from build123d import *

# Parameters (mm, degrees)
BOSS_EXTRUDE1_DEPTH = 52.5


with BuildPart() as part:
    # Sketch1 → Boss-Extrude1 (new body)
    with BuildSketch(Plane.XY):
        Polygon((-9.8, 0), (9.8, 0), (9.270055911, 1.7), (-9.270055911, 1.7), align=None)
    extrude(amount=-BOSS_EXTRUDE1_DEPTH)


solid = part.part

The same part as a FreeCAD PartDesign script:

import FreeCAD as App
import Part
import Sketcher


def add_polygon(sketch, points):
    """Adds a closed chain of lines whose ends are joined by coincident constraints."""
    first, n = sketch.GeometryCount, len(points)
    for a, b in zip(points, points[1:] + points[:1]):
        sketch.addGeometry(Part.LineSegment(App.Vector(*a, 0), App.Vector(*b, 0)), False)
    for i in range(n):
        sketch.addConstraint(Sketcher.Constraint("Coincident", first + i, 2, first + (i + 1) % n, 1))

doc = App.newDocument("Part")
body = doc.addObject("PartDesign::Body", "Body")

# Sketch on XY plane
sketch1 = body.newObject("Sketcher::SketchObject", "Sketch")
sketch1.AttachmentSupport = (doc.getObject("XY_Plane"), [""])
sketch1.MapMode = "FlatFace"
add_polygon(sketch1, [(-9.8, 0), (9.8, 0), (9.270056, 1.7), (-9.270056, 1.7)])  # lines 0-3
sketch1.addConstraint([
    Sketcher.Constraint("Horizontal", 0),
    Sketcher.Constraint("Horizontal", 2),
    Sketcher.Constraint("Symmetric", 0, 2, 3, 2, -1, 1),
    Sketcher.Constraint("Equal", 1, 3),
    Sketcher.Constraint("DistanceX", 0, 1, 0, 2, 19.6),
    Sketcher.Constraint("DistanceY", -1, 1, 1, 2, 1.7),
    Sketcher.Constraint("DistanceX", 2, 2, 2, 1, 18.540112),
])
pad1 = body.newObject("PartDesign::Pad", "Pad")
pad1.Profile = sketch1
pad1.Length = 52.5
pad1.Reversed = True

doc.recompute()
